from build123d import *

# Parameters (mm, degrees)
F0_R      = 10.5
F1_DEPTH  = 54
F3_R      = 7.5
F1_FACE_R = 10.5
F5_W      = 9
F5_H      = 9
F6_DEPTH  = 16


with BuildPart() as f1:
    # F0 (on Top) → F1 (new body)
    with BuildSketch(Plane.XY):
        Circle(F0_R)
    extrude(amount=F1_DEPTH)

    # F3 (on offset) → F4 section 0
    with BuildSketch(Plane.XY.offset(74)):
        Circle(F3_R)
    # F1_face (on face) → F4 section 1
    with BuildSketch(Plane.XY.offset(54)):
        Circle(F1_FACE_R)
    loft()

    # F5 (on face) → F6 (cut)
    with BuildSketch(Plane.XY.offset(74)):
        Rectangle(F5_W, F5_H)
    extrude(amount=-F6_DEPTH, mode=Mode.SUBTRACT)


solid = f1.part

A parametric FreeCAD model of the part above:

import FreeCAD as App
import Part
import Sketcher
Q = App.Units.Quantity

doc = App.newDocument("Part")
body = doc.addObject("PartDesign::Body", "Body")

sketch1 = doc.addObject("Sketcher::SketchObject", "Sketch")
body.addObject(sketch1)
sketch1.AttachmentSupport = (doc.XY_Plane, [""])
sketch1.MapMode = "FlatFace"
sketch1.addGeometry(Part.Circle(App.Vector(0, 0, 0), App.Vector(0, 0, 1), 10.5), False)
sketch1.addConstraint(Sketcher.Constraint("Coincident", 0, 3, -1, 1))
sketch1.addConstraint(Sketcher.Constraint("Diameter", 0, Q("21 mm")))
pad1 = doc.addObject("PartDesign::Pad", "Pad")
body.addObject(pad1)
pad1.Profile = sketch1
pad1.Length = 54

sketch2 = doc.addObject("Sketcher::SketchObject", "Sketch001")
body.addObject(sketch2)
sketch2.AttachmentSupport = (doc.XY_Plane, [""])
sketch2.MapMode = "FlatFace"
sketch2.AttachmentOffset = App.Placement(App.Vector(0, 0, 74), App.Rotation())
sketch2.addGeometry(Part.Circle(App.Vector(0, 0, 0), App.Vector(0, 0, 1), 7.5), False)
sketch2.addConstraint(Sketcher.Constraint("Coincident", 0, 3, -1, 1))
sketch2.addConstraint(Sketcher.Constraint("Diameter", 0, Q("15 mm")))

sketch3 = doc.addObject("Sketcher::SketchObject", "Sketch002")
body.addObject(sketch3)
sketch3.AttachmentSupport = (doc.XY_Plane, [""])
sketch3.MapMode = "FlatFace"
sketch3.AttachmentOffset = App.Placement(App.Vector(0, 0, 54), App.Rotation())
sketch3.addGeometry(Part.Circle(App.Vector(0, 0, 0), App.Vector(0, 0, 1), 10.5), False)
sketch3.addConstraint(Sketcher.Constraint("Coincident", 0, 3, -1, 1))
sketch3.addConstraint(Sketcher.Constraint("Diameter", 0, Q("21 mm")))

additiveloft = doc.addObject("PartDesign::AdditiveLoft", "AdditiveLoft")
body.addObject(additiveloft)
additiveloft.Profile = sketch2
additiveloft.Sections = [sketch3]

sketch4 = doc.addObject("Sketcher::SketchObject", "Sketch003")
body.addObject(sketch4)
sketch4.AttachmentSupport = (doc.XY_Plane, [""])
sketch4.MapMode = "FlatFace"
sketch4.AttachmentOffset = App.Placement(App.Vector(0, 0, 74), App.Rotation())
sketch4.addGeometry(Part.LineSegment(App.Vector(-4.5, 4.5, 0), App.Vector(-4.5, -4.5, 0)), False)
sketch4.addGeometry(Part.LineSegment(App.Vector(-4.5, -4.5, 0), App.Vector(4.5, -4.5, 0)), False)
sketch4.addGeometry(Part.LineSegment(App.Vector(4.5, -4.5, 0), App.Vector(4.5, 4.5, 0)), False)
sketch4.addGeometry(Part.LineSegment(App.Vector(4.5, 4.5, 0), App.Vector(-4.5, 4.5, 0)), False)
sketch4.addConstraint(Sketcher.Constraint("Coincident", 0, 2, 1, 1))
sketch4.addConstraint(Sketcher.Constraint("Coincident", 1, 2, 2, 1))
sketch4.addConstraint(Sketcher.Constraint("Coincident", 2, 2, 3, 1))
sketch4.addConstraint(Sketcher.Constraint("Coincident", 3, 2, 0, 1))
sketch4.addConstraint(Sketcher.Constraint("Vertical", 0))
sketch4.addConstraint(Sketcher.Constraint("Horizontal", 1))
sketch4.addConstraint(Sketcher.Constraint("Vertical", 2))
sketch4.addConstraint(Sketcher.Constraint("Horizontal", 3))
sketch4.addConstraint(Sketcher.Constraint("Symmetric", 0, 2, 2, 2, -1, 1))
sketch4.addConstraint(Sketcher.Constraint("Equal", 3, 0))
sketch4.addConstraint(Sketcher.Constraint("DistanceX", 1, 1, 1, 2, Q("9 mm")))
pocket1 = doc.addObject("PartDesign::Pocket", "Pocket")
body.addObject(pocket1)
pocket1.Profile = sketch4
pocket1.Length = 16

doc.recompute()
